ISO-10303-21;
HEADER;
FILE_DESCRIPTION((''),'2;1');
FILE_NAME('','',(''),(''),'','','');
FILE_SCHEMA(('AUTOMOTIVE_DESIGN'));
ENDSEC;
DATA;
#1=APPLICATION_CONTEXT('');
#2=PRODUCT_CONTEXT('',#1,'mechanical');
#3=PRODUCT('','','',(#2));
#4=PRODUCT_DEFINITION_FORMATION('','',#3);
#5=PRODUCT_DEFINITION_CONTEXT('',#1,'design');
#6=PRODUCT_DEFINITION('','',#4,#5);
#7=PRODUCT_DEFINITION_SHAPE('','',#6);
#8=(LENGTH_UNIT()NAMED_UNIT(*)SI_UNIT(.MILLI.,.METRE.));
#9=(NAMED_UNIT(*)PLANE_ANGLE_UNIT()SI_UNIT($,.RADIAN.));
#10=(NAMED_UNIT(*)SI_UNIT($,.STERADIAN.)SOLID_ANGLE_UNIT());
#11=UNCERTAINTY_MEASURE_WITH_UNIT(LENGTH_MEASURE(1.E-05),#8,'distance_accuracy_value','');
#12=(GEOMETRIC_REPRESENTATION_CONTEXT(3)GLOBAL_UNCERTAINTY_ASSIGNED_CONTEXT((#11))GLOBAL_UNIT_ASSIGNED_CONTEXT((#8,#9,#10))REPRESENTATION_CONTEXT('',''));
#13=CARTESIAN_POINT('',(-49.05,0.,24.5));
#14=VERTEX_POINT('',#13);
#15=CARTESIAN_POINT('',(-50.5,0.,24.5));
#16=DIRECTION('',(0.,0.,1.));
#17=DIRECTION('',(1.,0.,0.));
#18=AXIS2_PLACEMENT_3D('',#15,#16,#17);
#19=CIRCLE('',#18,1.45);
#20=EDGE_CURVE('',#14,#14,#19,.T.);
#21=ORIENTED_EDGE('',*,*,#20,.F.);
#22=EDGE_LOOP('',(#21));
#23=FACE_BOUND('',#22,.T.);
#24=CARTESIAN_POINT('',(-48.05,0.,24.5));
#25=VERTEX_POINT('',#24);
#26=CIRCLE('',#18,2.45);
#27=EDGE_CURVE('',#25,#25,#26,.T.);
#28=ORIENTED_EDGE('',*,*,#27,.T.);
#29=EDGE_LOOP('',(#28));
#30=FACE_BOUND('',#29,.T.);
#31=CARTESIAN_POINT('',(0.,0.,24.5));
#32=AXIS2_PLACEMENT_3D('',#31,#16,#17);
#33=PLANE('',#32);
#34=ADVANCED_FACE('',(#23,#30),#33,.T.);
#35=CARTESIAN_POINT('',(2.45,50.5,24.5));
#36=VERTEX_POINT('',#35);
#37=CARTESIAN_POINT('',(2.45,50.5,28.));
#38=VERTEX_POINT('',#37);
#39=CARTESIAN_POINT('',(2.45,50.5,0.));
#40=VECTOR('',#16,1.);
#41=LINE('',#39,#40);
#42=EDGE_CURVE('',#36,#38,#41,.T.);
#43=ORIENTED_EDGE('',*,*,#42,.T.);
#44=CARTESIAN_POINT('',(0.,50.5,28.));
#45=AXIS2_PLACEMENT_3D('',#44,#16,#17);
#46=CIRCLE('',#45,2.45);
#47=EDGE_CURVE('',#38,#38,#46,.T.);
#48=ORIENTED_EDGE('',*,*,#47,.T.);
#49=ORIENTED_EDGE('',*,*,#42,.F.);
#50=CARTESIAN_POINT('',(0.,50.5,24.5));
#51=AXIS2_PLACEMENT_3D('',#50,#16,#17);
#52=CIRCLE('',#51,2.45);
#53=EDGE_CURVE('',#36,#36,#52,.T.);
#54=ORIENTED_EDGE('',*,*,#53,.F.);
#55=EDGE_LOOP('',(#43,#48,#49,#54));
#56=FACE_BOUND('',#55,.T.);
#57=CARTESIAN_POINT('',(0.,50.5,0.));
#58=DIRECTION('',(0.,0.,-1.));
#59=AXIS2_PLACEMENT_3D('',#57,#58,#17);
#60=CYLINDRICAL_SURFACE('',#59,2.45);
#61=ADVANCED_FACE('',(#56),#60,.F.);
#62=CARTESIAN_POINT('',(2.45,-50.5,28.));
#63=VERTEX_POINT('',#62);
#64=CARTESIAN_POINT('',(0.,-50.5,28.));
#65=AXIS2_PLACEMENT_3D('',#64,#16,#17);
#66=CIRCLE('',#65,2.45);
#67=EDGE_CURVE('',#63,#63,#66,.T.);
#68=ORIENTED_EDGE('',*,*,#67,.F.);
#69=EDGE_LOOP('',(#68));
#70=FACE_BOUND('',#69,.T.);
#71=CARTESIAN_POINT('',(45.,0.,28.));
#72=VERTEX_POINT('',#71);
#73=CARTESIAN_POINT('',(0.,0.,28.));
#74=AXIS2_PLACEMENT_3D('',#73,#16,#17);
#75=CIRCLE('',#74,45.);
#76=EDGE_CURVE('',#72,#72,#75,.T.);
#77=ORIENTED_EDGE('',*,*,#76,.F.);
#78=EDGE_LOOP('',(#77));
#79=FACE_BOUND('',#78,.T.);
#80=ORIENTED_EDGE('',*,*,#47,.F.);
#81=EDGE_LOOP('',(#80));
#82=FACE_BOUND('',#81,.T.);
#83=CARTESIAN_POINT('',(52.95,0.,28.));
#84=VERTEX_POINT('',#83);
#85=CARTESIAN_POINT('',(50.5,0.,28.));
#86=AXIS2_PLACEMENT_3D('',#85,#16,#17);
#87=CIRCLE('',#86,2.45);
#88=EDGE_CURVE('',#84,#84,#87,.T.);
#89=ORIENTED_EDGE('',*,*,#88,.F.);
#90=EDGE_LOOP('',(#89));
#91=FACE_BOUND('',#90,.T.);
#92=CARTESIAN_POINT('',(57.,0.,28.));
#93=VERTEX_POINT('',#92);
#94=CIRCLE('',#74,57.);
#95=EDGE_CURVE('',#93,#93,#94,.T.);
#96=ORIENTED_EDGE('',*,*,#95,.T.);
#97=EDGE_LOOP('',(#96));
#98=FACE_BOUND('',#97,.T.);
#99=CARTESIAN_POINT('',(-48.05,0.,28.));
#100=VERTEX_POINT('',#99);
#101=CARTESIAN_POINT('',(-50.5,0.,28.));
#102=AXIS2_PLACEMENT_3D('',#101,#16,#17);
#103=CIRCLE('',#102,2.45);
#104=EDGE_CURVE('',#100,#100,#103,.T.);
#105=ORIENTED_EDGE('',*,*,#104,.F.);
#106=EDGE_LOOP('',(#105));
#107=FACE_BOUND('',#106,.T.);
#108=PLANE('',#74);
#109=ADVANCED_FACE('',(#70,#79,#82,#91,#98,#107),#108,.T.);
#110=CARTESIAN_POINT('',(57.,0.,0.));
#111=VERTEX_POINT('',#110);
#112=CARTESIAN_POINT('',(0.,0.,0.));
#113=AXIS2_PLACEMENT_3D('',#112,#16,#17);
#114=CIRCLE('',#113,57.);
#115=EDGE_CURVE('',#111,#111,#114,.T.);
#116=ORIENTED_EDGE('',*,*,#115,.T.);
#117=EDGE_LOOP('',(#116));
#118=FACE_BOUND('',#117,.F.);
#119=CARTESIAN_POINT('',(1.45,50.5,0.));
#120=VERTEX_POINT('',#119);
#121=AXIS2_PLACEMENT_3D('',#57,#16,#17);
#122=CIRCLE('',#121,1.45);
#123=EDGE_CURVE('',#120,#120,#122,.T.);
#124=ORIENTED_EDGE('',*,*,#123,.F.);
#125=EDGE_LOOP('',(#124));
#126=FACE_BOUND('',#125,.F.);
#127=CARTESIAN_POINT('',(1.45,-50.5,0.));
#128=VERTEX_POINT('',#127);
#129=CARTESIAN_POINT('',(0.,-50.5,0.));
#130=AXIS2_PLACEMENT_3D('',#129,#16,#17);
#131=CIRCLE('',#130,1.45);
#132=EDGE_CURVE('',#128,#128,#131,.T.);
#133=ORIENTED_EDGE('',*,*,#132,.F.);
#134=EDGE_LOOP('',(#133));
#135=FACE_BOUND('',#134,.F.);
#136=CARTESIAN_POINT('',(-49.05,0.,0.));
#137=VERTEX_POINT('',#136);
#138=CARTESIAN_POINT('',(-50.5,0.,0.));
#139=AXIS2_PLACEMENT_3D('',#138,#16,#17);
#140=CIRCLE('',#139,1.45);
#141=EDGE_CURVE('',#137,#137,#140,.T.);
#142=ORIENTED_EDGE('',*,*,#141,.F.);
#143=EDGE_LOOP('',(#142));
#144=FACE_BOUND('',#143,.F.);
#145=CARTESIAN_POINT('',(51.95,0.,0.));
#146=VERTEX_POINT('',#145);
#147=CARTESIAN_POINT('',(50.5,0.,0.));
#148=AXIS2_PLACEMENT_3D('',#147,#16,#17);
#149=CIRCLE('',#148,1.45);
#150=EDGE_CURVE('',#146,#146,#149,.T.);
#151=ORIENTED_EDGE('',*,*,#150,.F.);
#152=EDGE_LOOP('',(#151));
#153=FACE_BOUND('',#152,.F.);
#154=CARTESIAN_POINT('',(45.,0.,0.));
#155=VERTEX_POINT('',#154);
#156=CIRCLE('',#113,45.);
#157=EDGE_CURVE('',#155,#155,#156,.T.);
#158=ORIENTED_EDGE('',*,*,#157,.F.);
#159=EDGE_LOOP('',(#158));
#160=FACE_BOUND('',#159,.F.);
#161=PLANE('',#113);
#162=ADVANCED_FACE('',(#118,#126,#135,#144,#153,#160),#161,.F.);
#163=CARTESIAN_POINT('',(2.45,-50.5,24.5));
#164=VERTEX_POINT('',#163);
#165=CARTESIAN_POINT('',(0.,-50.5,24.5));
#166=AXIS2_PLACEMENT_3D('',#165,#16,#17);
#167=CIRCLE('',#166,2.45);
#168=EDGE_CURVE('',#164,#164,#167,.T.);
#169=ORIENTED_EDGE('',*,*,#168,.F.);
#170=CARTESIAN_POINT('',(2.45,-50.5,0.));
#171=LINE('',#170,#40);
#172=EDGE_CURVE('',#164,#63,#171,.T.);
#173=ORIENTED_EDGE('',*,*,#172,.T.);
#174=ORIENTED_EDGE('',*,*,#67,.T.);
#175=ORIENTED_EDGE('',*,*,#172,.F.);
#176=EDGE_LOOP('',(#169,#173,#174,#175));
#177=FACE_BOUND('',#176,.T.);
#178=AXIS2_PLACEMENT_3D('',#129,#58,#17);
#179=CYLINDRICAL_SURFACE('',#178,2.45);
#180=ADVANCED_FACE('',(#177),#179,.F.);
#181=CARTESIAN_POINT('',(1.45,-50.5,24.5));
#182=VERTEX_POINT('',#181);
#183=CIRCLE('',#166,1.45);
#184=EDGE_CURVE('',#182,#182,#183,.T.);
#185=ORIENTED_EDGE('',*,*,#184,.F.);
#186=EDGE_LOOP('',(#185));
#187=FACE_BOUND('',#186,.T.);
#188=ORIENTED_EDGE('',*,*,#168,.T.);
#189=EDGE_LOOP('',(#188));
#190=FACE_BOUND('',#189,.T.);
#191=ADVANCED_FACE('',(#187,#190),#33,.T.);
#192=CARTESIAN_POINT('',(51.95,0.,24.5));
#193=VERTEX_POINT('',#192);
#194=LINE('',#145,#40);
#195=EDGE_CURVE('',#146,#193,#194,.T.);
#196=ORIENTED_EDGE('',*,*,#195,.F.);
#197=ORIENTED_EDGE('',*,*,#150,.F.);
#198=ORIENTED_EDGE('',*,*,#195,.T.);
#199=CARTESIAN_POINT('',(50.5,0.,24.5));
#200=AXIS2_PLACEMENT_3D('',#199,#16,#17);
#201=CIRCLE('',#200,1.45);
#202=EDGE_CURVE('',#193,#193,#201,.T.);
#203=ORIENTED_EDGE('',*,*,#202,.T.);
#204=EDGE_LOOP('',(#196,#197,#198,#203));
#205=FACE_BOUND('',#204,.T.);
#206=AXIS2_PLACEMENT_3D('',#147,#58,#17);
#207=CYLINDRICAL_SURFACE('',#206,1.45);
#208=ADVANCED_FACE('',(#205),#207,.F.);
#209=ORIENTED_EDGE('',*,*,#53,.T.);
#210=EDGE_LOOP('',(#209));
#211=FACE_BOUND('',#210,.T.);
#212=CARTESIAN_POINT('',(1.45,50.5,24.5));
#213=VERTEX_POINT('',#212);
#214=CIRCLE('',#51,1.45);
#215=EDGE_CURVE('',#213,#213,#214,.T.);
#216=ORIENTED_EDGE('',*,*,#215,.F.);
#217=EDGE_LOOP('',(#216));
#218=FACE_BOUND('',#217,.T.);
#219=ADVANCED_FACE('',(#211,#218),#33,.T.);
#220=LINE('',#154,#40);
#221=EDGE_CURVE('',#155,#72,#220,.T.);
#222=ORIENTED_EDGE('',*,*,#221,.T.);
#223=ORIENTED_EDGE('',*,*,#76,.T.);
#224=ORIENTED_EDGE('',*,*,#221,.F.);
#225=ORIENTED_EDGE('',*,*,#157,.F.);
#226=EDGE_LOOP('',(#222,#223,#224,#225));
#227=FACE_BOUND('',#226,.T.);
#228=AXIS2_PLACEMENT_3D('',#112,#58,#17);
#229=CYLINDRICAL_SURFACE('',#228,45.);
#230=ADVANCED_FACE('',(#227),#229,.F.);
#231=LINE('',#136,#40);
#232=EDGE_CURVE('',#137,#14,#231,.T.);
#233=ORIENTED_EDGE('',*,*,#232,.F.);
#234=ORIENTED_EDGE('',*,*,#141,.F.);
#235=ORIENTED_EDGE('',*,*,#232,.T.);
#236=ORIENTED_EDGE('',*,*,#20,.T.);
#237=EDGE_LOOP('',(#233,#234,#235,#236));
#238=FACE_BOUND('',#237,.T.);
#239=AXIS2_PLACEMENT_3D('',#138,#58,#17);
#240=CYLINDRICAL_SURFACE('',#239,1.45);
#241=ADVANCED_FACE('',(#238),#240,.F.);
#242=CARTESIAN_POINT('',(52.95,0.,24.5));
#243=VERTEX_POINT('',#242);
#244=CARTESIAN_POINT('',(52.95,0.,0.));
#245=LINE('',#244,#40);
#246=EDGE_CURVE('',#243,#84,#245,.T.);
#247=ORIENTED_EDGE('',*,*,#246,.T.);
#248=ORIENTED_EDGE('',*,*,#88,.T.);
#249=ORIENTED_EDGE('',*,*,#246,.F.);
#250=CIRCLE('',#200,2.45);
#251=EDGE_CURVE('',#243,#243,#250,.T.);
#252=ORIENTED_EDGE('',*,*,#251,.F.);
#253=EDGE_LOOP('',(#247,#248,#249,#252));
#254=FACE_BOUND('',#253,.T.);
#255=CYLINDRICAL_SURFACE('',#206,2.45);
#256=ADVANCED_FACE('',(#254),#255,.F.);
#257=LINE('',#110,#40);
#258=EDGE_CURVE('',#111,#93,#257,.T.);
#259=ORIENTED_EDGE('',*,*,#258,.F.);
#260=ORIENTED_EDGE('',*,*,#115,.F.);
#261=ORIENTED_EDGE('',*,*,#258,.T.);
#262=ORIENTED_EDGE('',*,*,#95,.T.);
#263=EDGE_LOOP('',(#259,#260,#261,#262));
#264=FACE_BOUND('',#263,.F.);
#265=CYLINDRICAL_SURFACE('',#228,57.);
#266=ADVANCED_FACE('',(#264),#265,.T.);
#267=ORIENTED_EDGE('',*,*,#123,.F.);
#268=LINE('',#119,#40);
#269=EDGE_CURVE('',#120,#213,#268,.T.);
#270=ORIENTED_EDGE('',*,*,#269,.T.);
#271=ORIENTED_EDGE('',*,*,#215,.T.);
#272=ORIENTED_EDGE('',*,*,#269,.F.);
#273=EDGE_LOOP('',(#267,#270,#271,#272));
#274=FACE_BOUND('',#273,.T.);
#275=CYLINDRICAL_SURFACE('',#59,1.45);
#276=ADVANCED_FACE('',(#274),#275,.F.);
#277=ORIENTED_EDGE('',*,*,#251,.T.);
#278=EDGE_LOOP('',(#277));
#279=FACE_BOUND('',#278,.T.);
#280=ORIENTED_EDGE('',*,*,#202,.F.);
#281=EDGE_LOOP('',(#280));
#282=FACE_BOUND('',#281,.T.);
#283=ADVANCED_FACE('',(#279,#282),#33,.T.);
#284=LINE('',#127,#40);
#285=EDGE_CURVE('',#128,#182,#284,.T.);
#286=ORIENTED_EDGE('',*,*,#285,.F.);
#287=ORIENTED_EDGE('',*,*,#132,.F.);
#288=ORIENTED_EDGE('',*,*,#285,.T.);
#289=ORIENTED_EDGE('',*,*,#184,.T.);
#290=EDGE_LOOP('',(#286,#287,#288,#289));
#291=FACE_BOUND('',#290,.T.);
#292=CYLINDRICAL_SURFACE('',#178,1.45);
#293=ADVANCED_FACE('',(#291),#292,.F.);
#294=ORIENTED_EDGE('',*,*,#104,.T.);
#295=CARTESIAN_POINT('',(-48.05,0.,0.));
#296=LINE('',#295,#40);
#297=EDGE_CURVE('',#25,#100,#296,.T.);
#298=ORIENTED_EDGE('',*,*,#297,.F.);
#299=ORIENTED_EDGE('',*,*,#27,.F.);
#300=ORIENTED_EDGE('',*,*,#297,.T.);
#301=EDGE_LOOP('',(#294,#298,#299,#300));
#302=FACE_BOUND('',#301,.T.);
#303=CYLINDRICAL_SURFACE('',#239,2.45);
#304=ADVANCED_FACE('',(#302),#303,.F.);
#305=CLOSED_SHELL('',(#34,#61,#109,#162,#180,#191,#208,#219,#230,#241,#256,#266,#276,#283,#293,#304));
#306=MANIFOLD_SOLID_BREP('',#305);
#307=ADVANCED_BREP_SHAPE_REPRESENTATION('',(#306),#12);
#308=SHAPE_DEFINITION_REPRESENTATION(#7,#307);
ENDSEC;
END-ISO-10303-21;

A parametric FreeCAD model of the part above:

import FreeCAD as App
import Part
import Sketcher
Q = App.Units.Quantity

doc = App.newDocument("Part")
body = doc.addObject("PartDesign::Body", "Body")

# Sketch on XY plane
sketch1 = body.newObject("Sketcher::SketchObject", "Sketch")
sketch1.AttachmentSupport = (doc.getObject("XY_Plane"), [""])
sketch1.MapMode = "FlatFace"
sketch1.addGeometry([
    Part.Circle(App.Vector(0, 0, 0), App.Vector(0, 0, 1), 57),  # 0
    Part.Circle(App.Vector(0, -50.5, 0), App.Vector(0, 0, 1), 2.45),  # 1
    Part.Circle(App.Vector(-50.5, 0, 0), App.Vector(0, 0, 1), 2.45),  # 2
    Part.Circle(App.Vector(0, 0, 0), App.Vector(0, 0, 1), 45),  # 3
    Part.Circle(App.Vector(50.5, 0, 0), App.Vector(0, 0, 1), 2.45),  # 4
    Part.Circle(App.Vector(0, 50.5, 0), App.Vector(0, 0, 1), 2.45),  # 5
], False)
sketch1.addConstraint([
    Sketcher.Constraint("Coincident", 0, 3, -1, 1),
    Sketcher.Constraint("Coincident", 3, 3, -1, 1),
    Sketcher.Constraint("Equal", 1, 2),
    Sketcher.Constraint("Equal", 2, 4),
    Sketcher.Constraint("Equal", 4, 5),
    Sketcher.Constraint("Symmetric", 2, 3, 4, 3, -1, 1),
    Sketcher.Constraint("Symmetric", 1, 3, 5, 3, -1, 1),
    Sketcher.Constraint("PointOnObject", 1, 3, -2),
    Sketcher.Constraint("PointOnObject", 2, 3, -1),
    Sketcher.Constraint("Diameter", 0, Q("114 mm")),
    Sketcher.Constraint("Diameter", 3, Q("90 mm")),
    Sketcher.Constraint("Diameter", 1, Q("4.9 mm")),
    Sketcher.Constraint("DistanceX", 2, 3, 4, 3, Q("101 mm")),
    Sketcher.Constraint("DistanceY", 1, 3, 5, 3, Q("101 mm")),
])
pad1 = body.newObject("PartDesign::Pad", "Pad")
pad1.Profile = sketch1
pad1.Length = 28

# Sketch on XY plane
sketch2 = body.newObject("Sketcher::SketchObject", "Sketch001")
sketch2.AttachmentSupport = (doc.getObject("XY_Plane"), [""])
sketch2.MapMode = "FlatFace"
sketch2.addGeometry([
    Part.Circle(App.Vector(50.5, 0, 0), App.Vector(0, 0, 1), 2.45),  # 0
    Part.Circle(App.Vector(50.5, 0, 0), App.Vector(0, 0, 1), 1.45),  # 1
    Part.Circle(App.Vector(0, 50.5, 0), App.Vector(0, 0, 1), 2.45),  # 2
    Part.Circle(App.Vector(0, 50.5, 0), App.Vector(0, 0, 1), 1.45),  # 3
    Part.Circle(App.Vector(-50.5, 0, 0), App.Vector(0, 0, 1), 2.45),  # 4
    Part.Circle(App.Vector(-50.5, 0, 0), App.Vector(0, 0, 1), 1.45),  # 5
    Part.Circle(App.Vector(0, -50.5, 0), App.Vector(0, 0, 1), 2.45),  # 6
    Part.Circle(App.Vector(0, -50.5, 0), App.Vector(0, 0, 1), 1.45),  # 7
], False)
sketch2.addConstraint([
    Sketcher.Constraint("Coincident", 1, 3, 0, 3),
    Sketcher.Constraint("Coincident", 3, 3, 2, 3),
    Sketcher.Constraint("Coincident", 5, 3, 4, 3),
    Sketcher.Constraint("Coincident", 7, 3, 6, 3),
    Sketcher.Constraint("Equal", 0, 2),
    Sketcher.Constraint("Equal", 1, 3),
    Sketcher.Constraint("Equal", 2, 4),
    Sketcher.Constraint("Equal", 3, 5),
    Sketcher.Constraint("Equal", 4, 6),
    Sketcher.Constraint("Equal", 5, 7),
    Sketcher.Constraint("Symmetric", 0, 3, 4, 3, -1, 1),
    Sketcher.Constraint("Symmetric", 2, 3, 6, 3, -1, 1),
    Sketcher.Constraint("PointOnObject", 0, 3, -1),
    Sketcher.Constraint("PointOnObject", 2, 3, -2),
    Sketcher.Constraint("Diameter", 0, Q("4.9 mm")),
    Sketcher.Constraint("Diameter", 1, Q("2.9 mm")),
    Sketcher.Constraint("DistanceX", 4, 3, 0, 3, Q("101 mm")),
    Sketcher.Constraint("DistanceY", 6, 3, 2, 3, Q("101 mm")),
])
pad2 = body.newObject("PartDesign::Pad", "Pad001")
pad2.Profile = sketch2
pad2.Length = 24.5

doc.recompute()
